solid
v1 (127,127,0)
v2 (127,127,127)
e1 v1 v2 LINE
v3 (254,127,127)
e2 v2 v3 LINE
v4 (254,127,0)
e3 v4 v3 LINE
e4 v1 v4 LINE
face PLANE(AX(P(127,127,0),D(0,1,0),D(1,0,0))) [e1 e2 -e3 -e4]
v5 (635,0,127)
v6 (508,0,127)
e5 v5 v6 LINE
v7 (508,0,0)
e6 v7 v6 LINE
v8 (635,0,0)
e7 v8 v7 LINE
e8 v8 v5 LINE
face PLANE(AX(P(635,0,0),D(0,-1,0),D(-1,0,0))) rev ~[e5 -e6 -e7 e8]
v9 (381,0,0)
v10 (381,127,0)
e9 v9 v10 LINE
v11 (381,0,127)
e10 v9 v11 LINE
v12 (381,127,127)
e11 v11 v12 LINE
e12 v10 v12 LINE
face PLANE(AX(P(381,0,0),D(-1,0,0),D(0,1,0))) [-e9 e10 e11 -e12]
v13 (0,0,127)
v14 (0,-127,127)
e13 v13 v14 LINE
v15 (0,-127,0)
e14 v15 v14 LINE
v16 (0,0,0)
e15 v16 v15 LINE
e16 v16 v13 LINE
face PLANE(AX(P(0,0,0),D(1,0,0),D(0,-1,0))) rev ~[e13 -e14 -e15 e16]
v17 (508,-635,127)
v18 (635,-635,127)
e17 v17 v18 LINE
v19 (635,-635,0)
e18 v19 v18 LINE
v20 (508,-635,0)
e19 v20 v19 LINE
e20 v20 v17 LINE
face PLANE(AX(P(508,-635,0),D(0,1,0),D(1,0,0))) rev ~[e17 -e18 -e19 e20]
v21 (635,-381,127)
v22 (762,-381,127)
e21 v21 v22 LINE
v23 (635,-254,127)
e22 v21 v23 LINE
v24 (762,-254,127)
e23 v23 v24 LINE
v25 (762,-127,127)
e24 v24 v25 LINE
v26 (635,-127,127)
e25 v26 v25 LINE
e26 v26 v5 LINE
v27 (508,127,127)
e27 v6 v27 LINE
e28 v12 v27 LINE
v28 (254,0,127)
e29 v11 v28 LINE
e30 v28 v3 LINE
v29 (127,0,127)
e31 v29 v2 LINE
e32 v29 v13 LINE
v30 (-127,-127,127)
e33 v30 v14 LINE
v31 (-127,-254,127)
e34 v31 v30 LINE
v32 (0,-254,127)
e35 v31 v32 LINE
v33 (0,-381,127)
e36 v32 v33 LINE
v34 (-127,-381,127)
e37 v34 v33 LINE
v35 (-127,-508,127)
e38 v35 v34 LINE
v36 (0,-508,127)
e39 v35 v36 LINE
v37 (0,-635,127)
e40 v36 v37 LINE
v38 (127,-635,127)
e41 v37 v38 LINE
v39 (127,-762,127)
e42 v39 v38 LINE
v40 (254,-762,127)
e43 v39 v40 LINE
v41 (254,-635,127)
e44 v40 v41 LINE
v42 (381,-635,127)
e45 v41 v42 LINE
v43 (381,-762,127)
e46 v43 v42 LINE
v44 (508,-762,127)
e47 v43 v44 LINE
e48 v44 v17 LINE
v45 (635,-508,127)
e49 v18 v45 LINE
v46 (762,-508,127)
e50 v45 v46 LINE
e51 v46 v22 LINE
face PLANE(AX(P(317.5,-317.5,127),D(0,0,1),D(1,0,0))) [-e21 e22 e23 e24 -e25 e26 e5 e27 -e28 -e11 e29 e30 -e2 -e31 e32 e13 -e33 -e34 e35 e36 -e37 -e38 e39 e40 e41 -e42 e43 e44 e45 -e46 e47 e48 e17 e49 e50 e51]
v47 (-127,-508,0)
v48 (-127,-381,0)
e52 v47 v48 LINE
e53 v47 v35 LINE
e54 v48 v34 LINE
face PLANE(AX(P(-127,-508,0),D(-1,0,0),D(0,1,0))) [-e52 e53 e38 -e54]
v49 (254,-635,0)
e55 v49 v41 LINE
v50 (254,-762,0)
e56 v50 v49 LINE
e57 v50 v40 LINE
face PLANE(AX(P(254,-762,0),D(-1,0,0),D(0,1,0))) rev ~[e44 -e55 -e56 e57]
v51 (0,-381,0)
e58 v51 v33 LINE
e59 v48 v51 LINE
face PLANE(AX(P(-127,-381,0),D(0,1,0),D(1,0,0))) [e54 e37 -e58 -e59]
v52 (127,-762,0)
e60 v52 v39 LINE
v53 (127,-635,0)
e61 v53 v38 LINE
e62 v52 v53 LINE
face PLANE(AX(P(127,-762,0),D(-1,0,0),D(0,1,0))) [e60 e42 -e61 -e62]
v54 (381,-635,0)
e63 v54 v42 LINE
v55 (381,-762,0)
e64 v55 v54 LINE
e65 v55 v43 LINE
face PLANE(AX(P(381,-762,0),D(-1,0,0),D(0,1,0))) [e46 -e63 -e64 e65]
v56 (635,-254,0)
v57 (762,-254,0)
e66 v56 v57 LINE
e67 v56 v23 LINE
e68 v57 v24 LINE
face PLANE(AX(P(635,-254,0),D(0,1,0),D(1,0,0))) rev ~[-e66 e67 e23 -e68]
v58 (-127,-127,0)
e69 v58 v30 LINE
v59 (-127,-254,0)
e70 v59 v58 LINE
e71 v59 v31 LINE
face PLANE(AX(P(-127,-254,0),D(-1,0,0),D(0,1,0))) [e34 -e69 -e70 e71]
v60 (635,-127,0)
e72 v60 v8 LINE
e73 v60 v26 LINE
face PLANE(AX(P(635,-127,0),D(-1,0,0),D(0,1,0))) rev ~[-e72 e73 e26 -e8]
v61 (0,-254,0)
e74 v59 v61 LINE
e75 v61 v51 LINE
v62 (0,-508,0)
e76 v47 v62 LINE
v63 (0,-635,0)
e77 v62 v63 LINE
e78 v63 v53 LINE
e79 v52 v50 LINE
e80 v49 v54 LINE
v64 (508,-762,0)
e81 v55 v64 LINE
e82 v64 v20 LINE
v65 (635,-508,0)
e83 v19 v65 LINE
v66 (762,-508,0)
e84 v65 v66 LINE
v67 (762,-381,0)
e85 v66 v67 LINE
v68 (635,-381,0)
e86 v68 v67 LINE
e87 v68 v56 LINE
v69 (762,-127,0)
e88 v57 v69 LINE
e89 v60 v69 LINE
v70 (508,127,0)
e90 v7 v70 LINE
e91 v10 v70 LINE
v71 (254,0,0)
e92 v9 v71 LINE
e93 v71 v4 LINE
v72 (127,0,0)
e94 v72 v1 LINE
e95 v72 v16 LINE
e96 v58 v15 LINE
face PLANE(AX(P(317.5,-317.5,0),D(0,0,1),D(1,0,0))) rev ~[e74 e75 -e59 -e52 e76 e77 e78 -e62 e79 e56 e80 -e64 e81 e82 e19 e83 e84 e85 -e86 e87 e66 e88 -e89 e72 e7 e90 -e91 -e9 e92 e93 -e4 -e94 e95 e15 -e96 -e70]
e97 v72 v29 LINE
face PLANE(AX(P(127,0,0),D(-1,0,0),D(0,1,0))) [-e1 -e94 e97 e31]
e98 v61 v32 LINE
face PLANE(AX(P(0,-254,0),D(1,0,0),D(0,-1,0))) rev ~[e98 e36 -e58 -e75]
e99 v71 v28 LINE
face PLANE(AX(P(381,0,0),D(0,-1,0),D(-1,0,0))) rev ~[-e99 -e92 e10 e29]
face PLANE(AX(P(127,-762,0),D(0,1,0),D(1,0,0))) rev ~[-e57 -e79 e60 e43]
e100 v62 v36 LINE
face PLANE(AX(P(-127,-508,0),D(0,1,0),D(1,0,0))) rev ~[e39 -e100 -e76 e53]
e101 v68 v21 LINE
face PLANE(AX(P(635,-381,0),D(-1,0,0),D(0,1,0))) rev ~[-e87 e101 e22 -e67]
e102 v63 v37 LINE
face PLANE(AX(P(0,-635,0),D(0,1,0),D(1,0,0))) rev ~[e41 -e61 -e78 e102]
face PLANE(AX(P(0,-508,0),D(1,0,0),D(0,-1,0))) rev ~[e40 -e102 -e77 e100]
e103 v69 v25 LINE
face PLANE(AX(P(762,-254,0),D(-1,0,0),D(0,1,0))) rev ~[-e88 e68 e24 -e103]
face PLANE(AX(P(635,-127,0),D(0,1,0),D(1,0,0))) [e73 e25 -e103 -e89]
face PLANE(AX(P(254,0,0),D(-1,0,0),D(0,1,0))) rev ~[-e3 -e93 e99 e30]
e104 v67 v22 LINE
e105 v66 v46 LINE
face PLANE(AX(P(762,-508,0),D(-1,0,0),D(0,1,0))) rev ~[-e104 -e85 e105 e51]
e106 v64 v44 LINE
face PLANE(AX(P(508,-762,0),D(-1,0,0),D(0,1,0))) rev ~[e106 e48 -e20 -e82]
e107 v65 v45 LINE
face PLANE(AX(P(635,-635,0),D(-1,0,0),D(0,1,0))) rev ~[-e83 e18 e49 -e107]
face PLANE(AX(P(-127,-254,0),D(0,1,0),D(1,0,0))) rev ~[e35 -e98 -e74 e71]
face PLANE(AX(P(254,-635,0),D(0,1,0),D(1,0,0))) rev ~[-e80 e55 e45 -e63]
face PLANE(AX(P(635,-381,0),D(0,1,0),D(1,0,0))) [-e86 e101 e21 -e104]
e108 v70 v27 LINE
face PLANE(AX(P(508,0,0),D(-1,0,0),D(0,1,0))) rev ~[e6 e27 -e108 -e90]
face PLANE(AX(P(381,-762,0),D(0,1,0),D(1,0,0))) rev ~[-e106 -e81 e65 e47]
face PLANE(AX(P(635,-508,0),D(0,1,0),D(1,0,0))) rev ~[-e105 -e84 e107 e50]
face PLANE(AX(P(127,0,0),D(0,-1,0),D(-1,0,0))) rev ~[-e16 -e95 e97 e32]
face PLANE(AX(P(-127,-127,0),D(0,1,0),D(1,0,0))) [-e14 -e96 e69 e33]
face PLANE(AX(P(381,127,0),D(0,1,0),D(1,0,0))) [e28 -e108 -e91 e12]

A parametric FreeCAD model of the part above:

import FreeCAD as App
import Part
import Sketcher

V = App.Vector
Q = App.Units.Quantity

doc = App.newDocument("Part")
params = doc.addObject("Spreadsheet::Sheet", "Params")
for row, (alias, value) in enumerate([
    ("sketch1_width", "5 in"),
    ("pad1_length", "5 in"),
], start=1):
    params.set(f"A{row}", alias)
    params.set(f"B{row}", "=" + value)
    params.setAlias(f"B{row}", alias)

body = doc.addObject("PartDesign::Body", "Body")

# Sketch on XY plane
sketch1 = body.newObject("Sketcher::SketchObject", "Sketch")
sketch1.AttachmentSupport = (doc.getObject("XY_Plane"), [""])
sketch1.MapMode = "FlatFace"
sketch1.addGeometry([
    Part.LineSegment(V(0, 0, 0), V(0, -127, 0)),  # 0
    Part.LineSegment(V(0, -127, 0), V(-127, -127, 0)),  # 1
    Part.LineSegment(V(-127, -127, 0), V(-127, -254, 0)),  # 2
    Part.LineSegment(V(-127, -254, 0), V(0, -254, 0)),  # 3
    Part.LineSegment(V(0, -254, 0), V(0, -381, 0)),  # 4
    Part.LineSegment(V(0, -381, 0), V(-127, -381, 0)),  # 5
    Part.LineSegment(V(-127, -381, 0), V(-127, -508, 0)),  # 6
    Part.LineSegment(V(-127, -508, 0), V(0, -508, 0)),  # 7
    Part.LineSegment(V(0, -508, 0), V(0, -635, 0)),  # 8
    Part.LineSegment(V(0, -635, 0), V(127, -635, 0)),  # 9
    Part.LineSegment(V(127, -635, 0), V(127, -762, 0)),  # 10
    Part.LineSegment(V(127, -762, 0), V(254, -762, 0)),  # 11
    Part.LineSegment(V(254, -762, 0), V(254, -635, 0)),  # 12
    Part.LineSegment(V(254, -635, 0), V(381, -635, 0)),  # 13
    Part.LineSegment(V(381, -635, 0), V(381, -762, 0)),  # 14
    Part.LineSegment(V(381, -762, 0), V(508, -762, 0)),  # 15
    Part.LineSegment(V(508, -762, 0), V(508, -635, 0)),  # 16
    Part.LineSegment(V(508, -635, 0), V(635, -635, 0)),  # 17
    Part.LineSegment(V(635, -635, 0), V(635, -508, 0)),  # 18
    Part.LineSegment(V(635, -508, 0), V(762, -508, 0)),  # 19
    Part.LineSegment(V(762, -508, 0), V(762, -381, 0)),  # 20
    Part.LineSegment(V(762, -381, 0), V(635, -381, 0)),  # 21
    Part.LineSegment(V(635, -381, 0), V(635, -254, 0)),  # 22
    Part.LineSegment(V(635, -254, 0), V(762, -254, 0)),  # 23
    Part.LineSegment(V(762, -254, 0), V(762, -127, 0)),  # 24
    Part.LineSegment(V(762, -127, 0), V(635, -127, 0)),  # 25
    Part.LineSegment(V(635, -127, 0), V(635, 0, 0)),  # 26
    Part.LineSegment(V(635, 0, 0), V(508, 0, 0)),  # 27
    Part.LineSegment(V(508, 0, 0), V(508, 127, 0)),  # 28
    Part.LineSegment(V(508, 127, 0), V(381, 127, 0)),  # 29
    Part.LineSegment(V(381, 127, 0), V(381, 0, 0)),  # 30
    Part.LineSegment(V(381, 0, 0), V(254, 0, 0)),  # 31
    Part.LineSegment(V(254, 0, 0), V(254, 127, 0)),  # 32
    Part.LineSegment(V(254, 127, 0), V(127, 127, 0)),  # 33
    Part.LineSegment(V(127, 127, 0), V(127, 0, 0)),  # 34
    Part.LineSegment(V(127, 0, 0), V(0, 0, 0)),  # 35
], False)
sketch1.addConstraint([
    Sketcher.Constraint("Coincident", 0, 2, 1, 1),
    Sketcher.Constraint("Coincident", 1, 2, 2, 1),
    Sketcher.Constraint("Coincident", 2, 2, 3, 1),
    Sketcher.Constraint("Coincident", 3, 2, 4, 1),
    Sketcher.Constraint("Coincident", 4, 2, 5, 1),
    Sketcher.Constraint("Coincident", 5, 2, 6, 1),
    Sketcher.Constraint("Coincident", 6, 2, 7, 1),
    Sketcher.Constraint("Coincident", 7, 2, 8, 1),
    Sketcher.Constraint("Coincident", 8, 2, 9, 1),
    Sketcher.Constraint("Coincident", 9, 2, 10, 1),
    Sketcher.Constraint("Coincident", 10, 2, 11, 1),
    Sketcher.Constraint("Coincident", 11, 2, 12, 1),
    Sketcher.Constraint("Coincident", 12, 2, 13, 1),
    Sketcher.Constraint("Coincident", 13, 2, 14, 1),
    Sketcher.Constraint("Coincident", 14, 2, 15, 1),
    Sketcher.Constraint("Coincident", 15, 2, 16, 1),
    Sketcher.Constraint("Coincident", 16, 2, 17, 1),
    Sketcher.Constraint("Coincident", 17, 2, 18, 1),
    Sketcher.Constraint("Coincident", 18, 2, 19, 1),
    Sketcher.Constraint("Coincident", 19, 2, 20, 1),
    Sketcher.Constraint("Coincident", 20, 2, 21, 1),
    Sketcher.Constraint("Coincident", 21, 2, 22, 1),
    Sketcher.Constraint("Coincident", 22, 2, 23, 1),
    Sketcher.Constraint("Coincident", 23, 2, 24, 1),
    Sketcher.Constraint("Coincident", 24, 2, 25, 1),
    Sketcher.Constraint("Coincident", 25, 2, 26, 1),
    Sketcher.Constraint("Coincident", 26, 2, 27, 1),
    Sketcher.Constraint("Coincident", 27, 2, 28, 1),
    Sketcher.Constraint("Coincident", 28, 2, 29, 1),
    Sketcher.Constraint("Coincident", 29, 2, 30, 1),
    Sketcher.Constraint("Coincident", 30, 2, 31, 1),
    Sketcher.Constraint("Coincident", 31, 2, 32, 1),
    Sketcher.Constraint("Coincident", 32, 2, 33, 1),
    Sketcher.Constraint("Coincident", 33, 2, 34, 1),
    Sketcher.Constraint("Coincident", 34, 2, 35, 1),
    Sketcher.Constraint("Coincident", 35, 2, 0, 1),
    Sketcher.Constraint("Vertical", 0),
    Sketcher.Constraint("Horizontal", 1),
    Sketcher.Constraint("Vertical", 2),
    Sketcher.Constraint("Horizontal", 3),
    Sketcher.Constraint("Vertical", 4),
    Sketcher.Constraint("Horizontal", 5),
    Sketcher.Constraint("Vertical", 6),
    Sketcher.Constraint("Horizontal", 7),
    Sketcher.Constraint("Vertical", 8),
    Sketcher.Constraint("Horizontal", 9),
    Sketcher.Constraint("Vertical", 10),
    Sketcher.Constraint("Horizontal", 11),
    Sketcher.Constraint("Vertical", 12),
    Sketcher.Constraint("Horizontal", 13),
    Sketcher.Constraint("Vertical", 14),
    Sketcher.Constraint("Horizontal", 15),
    Sketcher.Constraint("Vertical", 16),
    Sketcher.Constraint("Horizontal", 17),
    Sketcher.Constraint("Vertical", 18),
    Sketcher.Constraint("Horizontal", 19),
    Sketcher.Constraint("Vertical", 20),
    Sketcher.Constraint("Horizontal", 21),
    Sketcher.Constraint("Vertical", 22),
    Sketcher.Constraint("Horizontal", 23),
    Sketcher.Constraint("Vertical", 24),
    Sketcher.Constraint("Horizontal", 25),
    Sketcher.Constraint("Vertical", 26),
    Sketcher.Constraint("Horizontal", 27),
    Sketcher.Constraint("Vertical", 28),
    Sketcher.Constraint("Horizontal", 29),
    Sketcher.Constraint("Vertical", 30),
    Sketcher.Constraint("Horizontal", 31),
    Sketcher.Constraint("Vertical", 32),
    Sketcher.Constraint("Horizontal", 33),
    Sketcher.Constraint("Vertical", 34),
    Sketcher.Constraint("Horizontal", 35),
    Sketcher.Constraint("Coincident", 35, 2, -1, 1),
    Sketcher.Constraint("Symmetric", 1, 2, 33, 2, -1, 1),
    Sketcher.Constraint("PointOnObject", 3, 2, -2),
    Sketcher.Constraint("PointOnObject", 7, 2, -2),
    Sketcher.Constraint("PointOnObject", 26, 2, -1),
    Sketcher.Constraint("PointOnObject", 30, 2, -1),
    Sketcher.Constraint("Horizontal", 9, 2, 12, 2),
    Sketcher.Constraint("Horizontal", 11, 2, 14, 2),
    Sketcher.Constraint("Horizontal", 13, 2, 16, 2),
    Sketcher.Constraint("Horizontal", 7, 2, 18, 2),
    Sketcher.Constraint("Horizontal", 5, 2, 20, 2),
    Sketcher.Constraint("Horizontal", 3, 2, 22, 2),
    Sketcher.Constraint("Horizontal", 1, 2, 24, 2),
    Sketcher.Constraint("Horizontal", 29, 2, 32, 2),
    Sketcher.Constraint("Vertical", 2, 2, 5, 2),
    Sketcher.Constraint("Vertical", 18, 2, 21, 2),
    Sketcher.Constraint("Vertical", 20, 2, 23, 2),
    Sketcher.Constraint("Vertical", 22, 2, 25, 2),
    Sketcher.Constraint("Vertical", 16, 2, 27, 2),
    Sketcher.Constraint("Vertical", 14, 2, 29, 2),
    Sketcher.Constraint("Vertical", 12, 2, 31, 2),
    Sketcher.Constraint("Vertical", 10, 2, 33, 2),
    Sketcher.Constraint("Equal", 9, 11),
    Sketcher.Constraint("Equal", 11, 13),
    Sketcher.Constraint("Equal", 13, 15),
    Sketcher.Constraint("Equal", 15, 17),
    Sketcher.Constraint("Equal", 17, 19),
    Sketcher.Constraint("Equal", 35, 0),
    Sketcher.Constraint("Equal", 0, 2),
    Sketcher.Constraint("Equal", 2, 4),
    Sketcher.Constraint("Equal", 4, 6),
    Sketcher.Constraint("Equal", 6, 8),
    Sketcher.Constraint("Equal", 8, 10),
    Sketcher.Constraint("DistanceX", 1, 2, 1, 1, Q("5 in")),
])
sketch1.setExpression("Constraints[105]", "Params.sketch1_width")
pad1 = body.newObject("PartDesign::Pad", "Pad")
pad1.Profile = sketch1
pad1.setExpression("Length", "Params.pad1_length")

doc.recompute()
